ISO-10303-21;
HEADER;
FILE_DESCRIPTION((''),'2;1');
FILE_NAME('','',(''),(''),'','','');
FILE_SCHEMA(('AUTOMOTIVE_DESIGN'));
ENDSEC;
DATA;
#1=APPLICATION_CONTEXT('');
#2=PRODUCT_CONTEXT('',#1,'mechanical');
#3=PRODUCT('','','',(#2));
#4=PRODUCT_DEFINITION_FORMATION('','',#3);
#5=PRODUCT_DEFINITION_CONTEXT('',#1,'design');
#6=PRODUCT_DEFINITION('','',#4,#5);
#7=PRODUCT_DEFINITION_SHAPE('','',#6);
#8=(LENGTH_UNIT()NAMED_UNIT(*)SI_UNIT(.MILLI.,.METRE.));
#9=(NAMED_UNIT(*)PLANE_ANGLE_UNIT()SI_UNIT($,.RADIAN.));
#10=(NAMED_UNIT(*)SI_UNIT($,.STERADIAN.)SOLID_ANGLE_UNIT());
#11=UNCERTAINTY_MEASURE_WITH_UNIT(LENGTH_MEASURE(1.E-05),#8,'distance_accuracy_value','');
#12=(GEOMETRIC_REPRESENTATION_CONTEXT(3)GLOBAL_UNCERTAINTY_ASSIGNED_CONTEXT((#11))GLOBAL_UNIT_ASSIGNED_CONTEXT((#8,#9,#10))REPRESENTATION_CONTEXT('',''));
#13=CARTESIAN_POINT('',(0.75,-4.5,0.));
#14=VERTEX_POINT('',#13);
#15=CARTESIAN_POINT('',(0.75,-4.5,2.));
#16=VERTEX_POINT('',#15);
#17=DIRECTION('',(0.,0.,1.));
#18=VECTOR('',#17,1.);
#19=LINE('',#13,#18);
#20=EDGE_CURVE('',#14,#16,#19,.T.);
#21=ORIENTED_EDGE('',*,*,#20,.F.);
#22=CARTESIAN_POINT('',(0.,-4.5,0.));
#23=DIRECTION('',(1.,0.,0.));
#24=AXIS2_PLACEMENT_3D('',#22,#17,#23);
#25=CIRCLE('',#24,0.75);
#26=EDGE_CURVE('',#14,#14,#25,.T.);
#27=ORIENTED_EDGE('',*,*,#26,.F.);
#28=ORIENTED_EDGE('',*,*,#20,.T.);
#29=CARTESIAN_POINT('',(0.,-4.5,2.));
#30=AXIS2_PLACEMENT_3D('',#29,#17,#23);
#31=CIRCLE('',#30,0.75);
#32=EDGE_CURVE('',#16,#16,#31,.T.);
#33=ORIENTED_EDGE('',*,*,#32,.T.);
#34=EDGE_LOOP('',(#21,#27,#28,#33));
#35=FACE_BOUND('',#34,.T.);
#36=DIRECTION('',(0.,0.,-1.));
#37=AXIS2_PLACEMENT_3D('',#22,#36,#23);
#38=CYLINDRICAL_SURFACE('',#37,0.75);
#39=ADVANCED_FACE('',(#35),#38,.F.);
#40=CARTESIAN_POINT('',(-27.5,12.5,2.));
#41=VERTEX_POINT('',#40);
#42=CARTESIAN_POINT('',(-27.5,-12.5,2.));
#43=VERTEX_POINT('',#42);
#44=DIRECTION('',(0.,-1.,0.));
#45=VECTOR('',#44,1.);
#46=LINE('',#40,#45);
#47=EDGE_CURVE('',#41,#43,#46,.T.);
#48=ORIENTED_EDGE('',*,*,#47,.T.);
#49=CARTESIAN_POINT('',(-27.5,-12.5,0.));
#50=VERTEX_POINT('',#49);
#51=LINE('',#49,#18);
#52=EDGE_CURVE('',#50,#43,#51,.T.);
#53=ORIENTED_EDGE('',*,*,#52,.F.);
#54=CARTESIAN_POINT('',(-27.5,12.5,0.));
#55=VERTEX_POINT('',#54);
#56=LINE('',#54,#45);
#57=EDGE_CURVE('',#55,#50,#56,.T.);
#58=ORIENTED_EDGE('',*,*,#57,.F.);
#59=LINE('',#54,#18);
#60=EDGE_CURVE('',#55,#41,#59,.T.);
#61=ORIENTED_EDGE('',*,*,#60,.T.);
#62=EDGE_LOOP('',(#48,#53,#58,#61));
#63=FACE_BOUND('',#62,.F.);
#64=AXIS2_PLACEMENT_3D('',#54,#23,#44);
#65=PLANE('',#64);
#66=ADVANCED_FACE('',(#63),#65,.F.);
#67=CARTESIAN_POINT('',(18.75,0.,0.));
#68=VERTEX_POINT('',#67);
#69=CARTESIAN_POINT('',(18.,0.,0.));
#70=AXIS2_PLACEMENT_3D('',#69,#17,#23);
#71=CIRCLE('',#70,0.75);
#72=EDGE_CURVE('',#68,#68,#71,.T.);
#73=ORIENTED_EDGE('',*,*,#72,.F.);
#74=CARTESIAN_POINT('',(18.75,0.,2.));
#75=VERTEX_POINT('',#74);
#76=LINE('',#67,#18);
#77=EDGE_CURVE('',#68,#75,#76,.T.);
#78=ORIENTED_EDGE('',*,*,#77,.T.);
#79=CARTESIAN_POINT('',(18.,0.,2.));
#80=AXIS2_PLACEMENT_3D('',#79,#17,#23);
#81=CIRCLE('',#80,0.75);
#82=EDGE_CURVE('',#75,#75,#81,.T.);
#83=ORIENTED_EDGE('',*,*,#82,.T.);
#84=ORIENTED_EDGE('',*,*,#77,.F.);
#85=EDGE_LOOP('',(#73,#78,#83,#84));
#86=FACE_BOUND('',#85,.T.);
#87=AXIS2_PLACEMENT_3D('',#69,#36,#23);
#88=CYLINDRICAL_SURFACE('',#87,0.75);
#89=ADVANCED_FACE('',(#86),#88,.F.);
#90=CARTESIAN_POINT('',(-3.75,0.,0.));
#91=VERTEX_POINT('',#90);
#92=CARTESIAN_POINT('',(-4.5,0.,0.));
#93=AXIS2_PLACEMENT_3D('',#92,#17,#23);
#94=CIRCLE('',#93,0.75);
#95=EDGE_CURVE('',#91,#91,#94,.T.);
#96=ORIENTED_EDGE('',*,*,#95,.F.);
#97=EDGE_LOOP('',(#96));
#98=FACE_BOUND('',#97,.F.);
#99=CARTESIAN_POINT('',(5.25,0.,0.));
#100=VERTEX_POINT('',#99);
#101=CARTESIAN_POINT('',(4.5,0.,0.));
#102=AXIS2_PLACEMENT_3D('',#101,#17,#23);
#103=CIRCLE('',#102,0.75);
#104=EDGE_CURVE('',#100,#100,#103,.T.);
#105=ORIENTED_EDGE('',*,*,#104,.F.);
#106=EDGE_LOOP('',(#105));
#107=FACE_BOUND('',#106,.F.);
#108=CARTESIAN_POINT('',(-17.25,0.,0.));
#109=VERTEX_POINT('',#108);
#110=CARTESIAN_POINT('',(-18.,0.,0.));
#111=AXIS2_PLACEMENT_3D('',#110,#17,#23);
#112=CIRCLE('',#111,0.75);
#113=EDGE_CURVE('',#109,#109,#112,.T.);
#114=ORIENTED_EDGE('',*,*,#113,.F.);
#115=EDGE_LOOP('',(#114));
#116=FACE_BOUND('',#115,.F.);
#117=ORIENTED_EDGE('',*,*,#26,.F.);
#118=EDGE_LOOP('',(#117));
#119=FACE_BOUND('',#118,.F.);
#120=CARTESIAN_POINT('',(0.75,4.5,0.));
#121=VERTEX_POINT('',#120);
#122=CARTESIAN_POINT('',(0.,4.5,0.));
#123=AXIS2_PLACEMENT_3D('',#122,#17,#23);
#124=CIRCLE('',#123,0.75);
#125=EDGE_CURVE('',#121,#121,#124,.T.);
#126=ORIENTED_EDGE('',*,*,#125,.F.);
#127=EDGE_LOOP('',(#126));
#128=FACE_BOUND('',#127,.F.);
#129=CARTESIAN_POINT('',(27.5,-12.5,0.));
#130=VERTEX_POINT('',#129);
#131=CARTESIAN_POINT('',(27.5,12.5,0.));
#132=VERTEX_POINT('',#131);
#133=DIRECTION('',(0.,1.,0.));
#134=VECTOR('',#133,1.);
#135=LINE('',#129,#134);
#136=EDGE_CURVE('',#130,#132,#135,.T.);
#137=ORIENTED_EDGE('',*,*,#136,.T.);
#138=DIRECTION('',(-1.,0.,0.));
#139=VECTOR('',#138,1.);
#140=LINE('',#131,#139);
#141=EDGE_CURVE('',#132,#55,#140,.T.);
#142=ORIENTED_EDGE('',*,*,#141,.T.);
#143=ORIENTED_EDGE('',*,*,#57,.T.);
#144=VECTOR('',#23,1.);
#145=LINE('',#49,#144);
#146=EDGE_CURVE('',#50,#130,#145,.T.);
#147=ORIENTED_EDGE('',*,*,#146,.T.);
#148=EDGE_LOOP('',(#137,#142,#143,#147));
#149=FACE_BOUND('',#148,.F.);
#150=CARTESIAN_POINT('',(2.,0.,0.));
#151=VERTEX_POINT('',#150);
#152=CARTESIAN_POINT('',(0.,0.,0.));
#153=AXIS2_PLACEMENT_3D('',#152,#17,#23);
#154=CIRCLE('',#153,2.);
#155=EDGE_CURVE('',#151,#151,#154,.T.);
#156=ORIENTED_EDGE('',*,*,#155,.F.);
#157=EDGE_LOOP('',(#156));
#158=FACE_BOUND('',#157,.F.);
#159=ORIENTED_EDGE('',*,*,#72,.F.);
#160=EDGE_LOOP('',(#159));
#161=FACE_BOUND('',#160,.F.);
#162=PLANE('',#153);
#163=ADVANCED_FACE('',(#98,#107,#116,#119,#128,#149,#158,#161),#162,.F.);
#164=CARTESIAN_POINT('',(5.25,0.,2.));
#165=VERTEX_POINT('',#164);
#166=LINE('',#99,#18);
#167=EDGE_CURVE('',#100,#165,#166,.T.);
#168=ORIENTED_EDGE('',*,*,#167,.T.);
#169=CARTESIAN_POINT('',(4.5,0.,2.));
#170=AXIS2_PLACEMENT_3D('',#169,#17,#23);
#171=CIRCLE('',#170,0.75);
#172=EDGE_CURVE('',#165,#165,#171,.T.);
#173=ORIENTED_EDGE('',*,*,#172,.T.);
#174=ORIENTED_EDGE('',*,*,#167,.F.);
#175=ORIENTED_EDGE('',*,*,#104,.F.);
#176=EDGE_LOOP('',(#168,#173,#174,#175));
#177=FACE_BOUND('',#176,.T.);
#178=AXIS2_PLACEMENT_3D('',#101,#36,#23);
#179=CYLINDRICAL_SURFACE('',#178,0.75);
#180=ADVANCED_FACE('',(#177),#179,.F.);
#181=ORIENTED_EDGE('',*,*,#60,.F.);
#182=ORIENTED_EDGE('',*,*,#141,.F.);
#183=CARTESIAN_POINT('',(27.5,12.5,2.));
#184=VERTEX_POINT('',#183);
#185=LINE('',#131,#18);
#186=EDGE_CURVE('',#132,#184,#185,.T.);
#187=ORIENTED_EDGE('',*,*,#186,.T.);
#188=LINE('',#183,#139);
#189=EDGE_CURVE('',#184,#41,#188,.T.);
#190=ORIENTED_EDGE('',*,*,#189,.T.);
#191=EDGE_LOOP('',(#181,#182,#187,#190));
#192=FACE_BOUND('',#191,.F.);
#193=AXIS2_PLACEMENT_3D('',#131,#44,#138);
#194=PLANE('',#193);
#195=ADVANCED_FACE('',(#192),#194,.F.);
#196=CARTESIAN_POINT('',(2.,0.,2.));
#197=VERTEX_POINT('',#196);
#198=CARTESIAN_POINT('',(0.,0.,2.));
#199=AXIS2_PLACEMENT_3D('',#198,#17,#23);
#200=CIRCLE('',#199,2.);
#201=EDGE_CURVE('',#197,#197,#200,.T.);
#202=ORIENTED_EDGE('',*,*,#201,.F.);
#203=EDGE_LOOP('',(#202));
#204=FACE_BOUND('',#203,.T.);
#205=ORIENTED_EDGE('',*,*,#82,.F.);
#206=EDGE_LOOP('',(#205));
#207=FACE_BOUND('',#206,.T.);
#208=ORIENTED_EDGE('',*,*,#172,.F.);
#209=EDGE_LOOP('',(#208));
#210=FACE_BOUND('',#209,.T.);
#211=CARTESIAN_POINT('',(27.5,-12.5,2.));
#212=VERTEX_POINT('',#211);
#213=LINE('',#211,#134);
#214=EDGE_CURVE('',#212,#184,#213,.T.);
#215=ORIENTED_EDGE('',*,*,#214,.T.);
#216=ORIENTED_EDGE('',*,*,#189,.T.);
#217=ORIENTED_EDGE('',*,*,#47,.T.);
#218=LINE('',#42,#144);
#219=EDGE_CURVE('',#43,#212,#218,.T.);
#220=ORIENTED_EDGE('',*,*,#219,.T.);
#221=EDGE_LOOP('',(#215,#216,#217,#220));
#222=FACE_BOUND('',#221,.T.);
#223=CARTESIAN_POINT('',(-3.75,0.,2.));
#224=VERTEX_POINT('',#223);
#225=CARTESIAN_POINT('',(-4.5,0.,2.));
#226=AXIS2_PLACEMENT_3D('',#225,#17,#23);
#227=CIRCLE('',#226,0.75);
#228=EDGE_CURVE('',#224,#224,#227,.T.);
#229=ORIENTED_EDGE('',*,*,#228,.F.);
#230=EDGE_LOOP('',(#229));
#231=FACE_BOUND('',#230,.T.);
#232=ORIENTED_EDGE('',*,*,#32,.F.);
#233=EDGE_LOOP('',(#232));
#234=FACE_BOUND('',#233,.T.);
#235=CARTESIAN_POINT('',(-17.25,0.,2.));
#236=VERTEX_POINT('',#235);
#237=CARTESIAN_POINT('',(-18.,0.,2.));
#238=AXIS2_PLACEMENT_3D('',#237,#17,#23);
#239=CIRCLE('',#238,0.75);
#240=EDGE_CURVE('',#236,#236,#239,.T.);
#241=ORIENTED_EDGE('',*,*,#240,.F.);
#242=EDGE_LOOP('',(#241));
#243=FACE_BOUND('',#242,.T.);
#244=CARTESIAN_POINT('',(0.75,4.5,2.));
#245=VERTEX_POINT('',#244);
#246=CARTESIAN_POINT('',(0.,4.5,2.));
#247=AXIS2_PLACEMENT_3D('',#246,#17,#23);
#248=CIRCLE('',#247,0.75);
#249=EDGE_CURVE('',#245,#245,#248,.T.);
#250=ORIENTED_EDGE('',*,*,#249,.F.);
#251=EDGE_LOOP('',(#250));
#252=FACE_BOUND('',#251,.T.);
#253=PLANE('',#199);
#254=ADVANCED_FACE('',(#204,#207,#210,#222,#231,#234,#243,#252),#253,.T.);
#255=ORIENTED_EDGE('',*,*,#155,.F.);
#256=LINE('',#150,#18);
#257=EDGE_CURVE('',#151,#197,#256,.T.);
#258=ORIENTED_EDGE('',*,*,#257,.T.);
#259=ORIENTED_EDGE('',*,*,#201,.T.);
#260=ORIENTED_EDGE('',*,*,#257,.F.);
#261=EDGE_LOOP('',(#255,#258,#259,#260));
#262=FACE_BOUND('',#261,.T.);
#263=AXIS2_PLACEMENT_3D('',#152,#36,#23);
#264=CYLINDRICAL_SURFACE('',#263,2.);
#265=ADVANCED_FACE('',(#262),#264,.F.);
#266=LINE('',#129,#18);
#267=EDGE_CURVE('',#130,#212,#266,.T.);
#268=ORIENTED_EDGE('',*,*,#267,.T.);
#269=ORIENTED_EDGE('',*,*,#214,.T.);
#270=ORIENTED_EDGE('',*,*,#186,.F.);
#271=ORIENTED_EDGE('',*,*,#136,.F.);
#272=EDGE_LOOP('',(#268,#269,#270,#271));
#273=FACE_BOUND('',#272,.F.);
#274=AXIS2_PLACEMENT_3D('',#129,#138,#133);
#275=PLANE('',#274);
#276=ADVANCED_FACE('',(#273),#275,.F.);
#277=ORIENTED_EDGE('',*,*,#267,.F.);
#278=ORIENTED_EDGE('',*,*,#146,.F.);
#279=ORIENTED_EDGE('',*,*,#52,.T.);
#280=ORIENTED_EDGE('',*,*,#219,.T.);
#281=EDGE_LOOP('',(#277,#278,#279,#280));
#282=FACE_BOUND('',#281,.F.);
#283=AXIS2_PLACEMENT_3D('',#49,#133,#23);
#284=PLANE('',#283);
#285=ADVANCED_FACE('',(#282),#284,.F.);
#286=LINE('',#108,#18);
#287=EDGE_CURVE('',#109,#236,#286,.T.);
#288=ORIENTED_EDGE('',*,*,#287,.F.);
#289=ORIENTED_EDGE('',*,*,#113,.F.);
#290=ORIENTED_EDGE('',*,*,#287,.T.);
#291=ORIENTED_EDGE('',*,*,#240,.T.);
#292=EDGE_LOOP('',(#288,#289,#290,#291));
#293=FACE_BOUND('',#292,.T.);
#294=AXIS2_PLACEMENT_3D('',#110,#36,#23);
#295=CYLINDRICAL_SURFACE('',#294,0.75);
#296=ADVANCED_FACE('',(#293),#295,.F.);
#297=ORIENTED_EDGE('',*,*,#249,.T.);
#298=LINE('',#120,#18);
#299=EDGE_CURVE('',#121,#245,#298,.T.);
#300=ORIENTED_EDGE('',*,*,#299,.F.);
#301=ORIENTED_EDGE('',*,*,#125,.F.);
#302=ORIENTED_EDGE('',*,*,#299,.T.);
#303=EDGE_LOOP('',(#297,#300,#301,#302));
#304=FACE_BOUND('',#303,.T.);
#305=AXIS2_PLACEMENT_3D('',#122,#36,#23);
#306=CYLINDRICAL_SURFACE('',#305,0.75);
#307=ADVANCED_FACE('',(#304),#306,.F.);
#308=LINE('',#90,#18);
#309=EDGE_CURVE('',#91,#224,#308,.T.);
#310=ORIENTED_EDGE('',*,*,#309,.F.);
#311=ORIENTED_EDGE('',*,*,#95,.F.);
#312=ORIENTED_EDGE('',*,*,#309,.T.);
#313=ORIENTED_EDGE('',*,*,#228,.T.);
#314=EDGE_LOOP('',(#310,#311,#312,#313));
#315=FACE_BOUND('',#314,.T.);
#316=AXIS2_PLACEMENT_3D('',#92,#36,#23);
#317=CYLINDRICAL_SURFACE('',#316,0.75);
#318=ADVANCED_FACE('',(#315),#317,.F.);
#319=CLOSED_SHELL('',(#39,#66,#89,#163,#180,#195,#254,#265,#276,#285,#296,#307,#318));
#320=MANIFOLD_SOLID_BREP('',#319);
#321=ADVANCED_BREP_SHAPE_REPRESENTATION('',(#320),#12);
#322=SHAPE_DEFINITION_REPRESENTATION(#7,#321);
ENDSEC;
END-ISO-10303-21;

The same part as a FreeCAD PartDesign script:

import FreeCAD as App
import Part
import Sketcher

V = App.Vector


def add_polygon(sketch, points):
    """Adds a closed chain of lines whose ends are joined by coincident constraints."""
    first, n = sketch.GeometryCount, len(points)
    for a, b in zip(points, points[1:] + points[:1]):
        sketch.addGeometry(Part.LineSegment(App.Vector(*a, 0), App.Vector(*b, 0)), False)
    for i in range(n):
        sketch.addConstraint(Sketcher.Constraint("Coincident", first + i, 2, first + (i + 1) % n, 1))

doc = App.newDocument("Part")
params = doc.addObject("Spreadsheet::Sheet", "Params")
for row, (alias, value) in enumerate([
    ("sketch1_diameter", "4 mm"),
    ("sketch1_diameter2", "1.5 mm"),
    ("sketch1_width", "55 mm"),
    ("sketch1_height", "25 mm"),
    ("pad1_length", "2 mm"),
], start=1):
    params.set(f"A{row}", alias)
    params.set(f"B{row}", "=" + value)
    params.setAlias(f"B{row}", alias)

body = doc.addObject("PartDesign::Body", "Body")

# Sketch on XY plane
sketch1 = body.newObject("Sketcher::SketchObject", "Sketch")
sketch1.AttachmentSupport = (doc.getObject("XY_Plane"), [""])
sketch1.MapMode = "FlatFace"
add_polygon(sketch1, [(-27.5, 12.5), (-27.5, -12.5), (27.5, -12.5), (27.5, 12.5)])  # lines 0-3
sketch1.addGeometry(Part.Circle(V(0, -4.5, 0), V(0, 0, 1), 0.8), False)  # 4
sketch1.addGeometry(Part.Circle(V(-18, 0, 0), V(0, 0, 1), 0.8), False)  # 5
sketch1.addGeometry(Part.Circle(V(-4.5, 0, 0), V(0, 0, 1), 0.8), False)  # 6
sketch1.addGeometry(Part.Circle(V(0, 0, 0), V(0, 0, 1), 2), False)  # 7
sketch1.addGeometry(Part.Circle(V(4.5, 0, 0), V(0, 0, 1), 0.8), False)  # 8
sketch1.addGeometry(Part.Circle(V(0, 4.5, 0), V(0, 0, 1), 0.8), False)  # 9
sketch1.addGeometry(Part.Circle(V(18, 0, 0), V(0, 0, 1), 0.8), False)  # 10
sketch1.addConstraint([
    Sketcher.Constraint("Vertical", 0),
    Sketcher.Constraint("Horizontal", 1),
    Sketcher.Constraint("Vertical", 2),
    Sketcher.Constraint("Horizontal", 3),
    Sketcher.Constraint("Coincident", 7, 3, -1, 1),
    Sketcher.Constraint("Equal", 4, 5),
    Sketcher.Constraint("Equal", 5, 6),
    Sketcher.Constraint("Equal", 6, 8),
    Sketcher.Constraint("Equal", 8, 9),
    Sketcher.Constraint("Equal", 9, 10),
    Sketcher.Constraint("Symmetric", 6, 3, 8, 3, -1, 1),
    Sketcher.Constraint("Symmetric", 4, 3, 9, 3, -1, 1),
    Sketcher.Constraint("Symmetric", 5, 3, 10, 3, -1, 1),
    Sketcher.Constraint("Symmetric", 0, 2, 2, 2, -1, 1),
    Sketcher.Constraint("PointOnObject", 4, 3, -2),
    Sketcher.Constraint("PointOnObject", 5, 3, -1),
    Sketcher.Constraint("PointOnObject", 6, 3, -1),
    Sketcher.Constraint("Diameter", 7, 4.0),
    Sketcher.Constraint("Diameter", 4, 1.5),
    Sketcher.Constraint("DistanceX", 1, 1, 1, 2, 55.0),
    Sketcher.Constraint("DistanceY", 0, 2, 0, 1, 25.0),
    Sketcher.Constraint("DistanceX", 5, 3, -1, 1, 18.0),
    Sketcher.Constraint("DistanceX", 6, 3, 8, 3, 9.0),
    Sketcher.Constraint("DistanceY", 4, 3, 9, 3, 9.0),
])
sketch1.setExpression("Constraints[21]", "Params.sketch1_diameter")
sketch1.setExpression("Constraints[22]", "Params.sketch1_diameter2")
sketch1.setExpression("Constraints[23]", "Params.sketch1_width")
sketch1.setExpression("Constraints[24]", "Params.sketch1_height")
pad1 = body.newObject("PartDesign::Pad", "Pad")
pad1.Profile = sketch1
pad1.setExpression("Length", "Params.pad1_length")

doc.recompute()
